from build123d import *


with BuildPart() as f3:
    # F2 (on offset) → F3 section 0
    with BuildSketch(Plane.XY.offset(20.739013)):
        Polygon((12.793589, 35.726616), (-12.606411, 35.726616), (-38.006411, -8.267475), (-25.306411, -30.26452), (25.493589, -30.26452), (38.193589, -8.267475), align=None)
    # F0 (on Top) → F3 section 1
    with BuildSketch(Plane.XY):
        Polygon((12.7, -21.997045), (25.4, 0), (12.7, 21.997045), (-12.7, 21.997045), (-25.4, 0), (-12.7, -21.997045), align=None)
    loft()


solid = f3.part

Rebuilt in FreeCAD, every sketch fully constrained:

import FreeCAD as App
import Part
import Sketcher
Q = App.Units.Quantity

doc = App.newDocument("Part")
body = doc.addObject("PartDesign::Body", "Body")

sketch1 = body.newObject("Sketcher::SketchObject", "Sketch")
sketch1.AttachmentSupport = (doc.getObject("XY_Plane"), [""])
sketch1.MapMode = "FlatFace"
sketch1.AttachmentOffset = App.Placement(App.Vector(0, 0, 20.739013), App.Rotation())
sketch1.addGeometry([
    Part.LineSegment(App.Vector(13, 36, 0), App.Vector(-13, 36, 0)),
    Part.LineSegment(App.Vector(-13, 36, 0), App.Vector(-38, -8, 0)),
    Part.LineSegment(App.Vector(-38, -8, 0), App.Vector(-25, -30, 0)),
    Part.LineSegment(App.Vector(-25, -30, 0), App.Vector(25, -30, 0)),
    Part.LineSegment(App.Vector(25, -30, 0), App.Vector(38, -8, 0)),
    Part.LineSegment(App.Vector(38, -8, 0), App.Vector(13, 36, 0)),
], False)
sketch1.addConstraint([
    Sketcher.Constraint("Coincident", 0, 2, 1, 1),
    Sketcher.Constraint("Coincident", 1, 2, 2, 1),
    Sketcher.Constraint("Coincident", 2, 2, 3, 1),
    Sketcher.Constraint("Coincident", 3, 2, 4, 1),
    Sketcher.Constraint("Coincident", 4, 2, 5, 1),
    Sketcher.Constraint("Coincident", 5, 2, 0, 1),
    Sketcher.Constraint("Horizontal", 0),
    Sketcher.Constraint("Horizontal", 3),
    Sketcher.Constraint("Parallel", 1, 4),
    Sketcher.Constraint("Parallel", 2, 5),
    Sketcher.Constraint("Horizontal", 1, 2, 4, 2),
    Sketcher.Constraint("Equal", 2, 4),
    Sketcher.Constraint("DistanceX", 0, 2, 0, 1, Q("1 in")),
    Sketcher.Constraint("DistanceX", 3, 1, 3, 2, Q("2 in")),
    Sketcher.Constraint("Distance", 1, Q("2 in")),
    Sketcher.Constraint("Distance", 2, Q("1 in")),
    Sketcher.Constraint("DistanceX", 0, 2, -1, 1, Q("12.606411 mm")),
    Sketcher.Constraint("DistanceY", 2, 2, -1, 1, Q("30.26452 mm")),
])

sketch2 = body.newObject("Sketcher::SketchObject", "Sketch001")
sketch2.AttachmentSupport = (doc.getObject("XY_Plane"), [""])
sketch2.MapMode = "FlatFace"
sketch2.addGeometry([
    Part.LineSegment(App.Vector(13, -22, 0), App.Vector(25, 0, 0)),
    Part.LineSegment(App.Vector(25, 0, 0), App.Vector(13, 22, 0)),
    Part.LineSegment(App.Vector(13, 22, 0), App.Vector(-13, 22, 0)),
    Part.LineSegment(App.Vector(-13, 22, 0), App.Vector(-25, 0, 0)),
    Part.LineSegment(App.Vector(-25, 0, 0), App.Vector(-13, -22, 0)),
    Part.LineSegment(App.Vector(-13, -22, 0), App.Vector(13, -22, 0)),
], False)
sketch2.addConstraint([
    Sketcher.Constraint("Coincident", 0, 2, 1, 1),
    Sketcher.Constraint("Coincident", 1, 2, 2, 1),
    Sketcher.Constraint("Coincident", 2, 2, 3, 1),
    Sketcher.Constraint("Coincident", 3, 2, 4, 1),
    Sketcher.Constraint("Coincident", 4, 2, 5, 1),
    Sketcher.Constraint("Coincident", 5, 2, 0, 1),
    Sketcher.Constraint("Horizontal", 2),
    Sketcher.Constraint("Horizontal", 5),
    Sketcher.Constraint("Symmetric", 0, 2, 3, 2, -1, 1),
    Sketcher.Constraint("Symmetric", 1, 2, 4, 2, -1, 1),
    Sketcher.Constraint("PointOnObject", 0, 2, -1),
    Sketcher.Constraint("Parallel", 0, 3),
    Sketcher.Constraint("Vertical", 2, 2, 4, 2),
    Sketcher.Constraint("DistanceX", 2, 2, 2, 1, Q("1 in")),
    Sketcher.Constraint("Distance", 0, Q("1 in")),
    Sketcher.Constraint("DistanceX", -1, 1, 0, 2, Q("1 in")),
])

additiveloft = body.newObject("PartDesign::AdditiveLoft", "AdditiveLoft")
additiveloft.Profile = sketch1
additiveloft.Sections = [sketch2]

doc.recompute()
